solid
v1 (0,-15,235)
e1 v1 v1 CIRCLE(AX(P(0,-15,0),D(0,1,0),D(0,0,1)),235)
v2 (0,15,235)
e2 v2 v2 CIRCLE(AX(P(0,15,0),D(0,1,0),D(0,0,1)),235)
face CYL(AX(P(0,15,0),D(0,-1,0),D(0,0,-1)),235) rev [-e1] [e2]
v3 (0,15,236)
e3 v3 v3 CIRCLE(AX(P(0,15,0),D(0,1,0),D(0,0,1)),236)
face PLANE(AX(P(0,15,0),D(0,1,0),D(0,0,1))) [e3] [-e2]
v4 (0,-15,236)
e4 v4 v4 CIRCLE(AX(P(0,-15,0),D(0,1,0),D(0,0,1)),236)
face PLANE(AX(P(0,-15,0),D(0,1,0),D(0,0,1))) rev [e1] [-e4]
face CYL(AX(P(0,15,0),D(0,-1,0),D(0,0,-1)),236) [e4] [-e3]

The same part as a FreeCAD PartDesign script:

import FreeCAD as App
import Part
import Sketcher

V = App.Vector

doc = App.newDocument("Part")
body = doc.addObject("PartDesign::Body", "Body")

sketch1 = body.newObject("Sketcher::SketchObject", "Sketch")
sketch1.AttachmentSupport = (doc.getObject("XZ_Plane"), [""])
sketch1.MapMode = "FlatFace"
sketch1.addGeometry([
    Part.Circle(V(0, 0, 0), V(0, 0, 1), 236),
    Part.Circle(V(0, 0, 0), V(0, 0, 1), 235),
], False)
sketch1.addConstraint([
    Sketcher.Constraint("Coincident", 0, 3, -1, 1),
    Sketcher.Constraint("Coincident", 1, 3, -1, 1),
    Sketcher.Constraint("Diameter", 0, 472.0),
    Sketcher.Constraint("Diameter", 1, 470.0),
])
pad1 = body.newObject("PartDesign::Pad", "Pad")
pad1.Profile = sketch1
pad1.Length = 30
pad1.Midplane = True

doc.recompute()
